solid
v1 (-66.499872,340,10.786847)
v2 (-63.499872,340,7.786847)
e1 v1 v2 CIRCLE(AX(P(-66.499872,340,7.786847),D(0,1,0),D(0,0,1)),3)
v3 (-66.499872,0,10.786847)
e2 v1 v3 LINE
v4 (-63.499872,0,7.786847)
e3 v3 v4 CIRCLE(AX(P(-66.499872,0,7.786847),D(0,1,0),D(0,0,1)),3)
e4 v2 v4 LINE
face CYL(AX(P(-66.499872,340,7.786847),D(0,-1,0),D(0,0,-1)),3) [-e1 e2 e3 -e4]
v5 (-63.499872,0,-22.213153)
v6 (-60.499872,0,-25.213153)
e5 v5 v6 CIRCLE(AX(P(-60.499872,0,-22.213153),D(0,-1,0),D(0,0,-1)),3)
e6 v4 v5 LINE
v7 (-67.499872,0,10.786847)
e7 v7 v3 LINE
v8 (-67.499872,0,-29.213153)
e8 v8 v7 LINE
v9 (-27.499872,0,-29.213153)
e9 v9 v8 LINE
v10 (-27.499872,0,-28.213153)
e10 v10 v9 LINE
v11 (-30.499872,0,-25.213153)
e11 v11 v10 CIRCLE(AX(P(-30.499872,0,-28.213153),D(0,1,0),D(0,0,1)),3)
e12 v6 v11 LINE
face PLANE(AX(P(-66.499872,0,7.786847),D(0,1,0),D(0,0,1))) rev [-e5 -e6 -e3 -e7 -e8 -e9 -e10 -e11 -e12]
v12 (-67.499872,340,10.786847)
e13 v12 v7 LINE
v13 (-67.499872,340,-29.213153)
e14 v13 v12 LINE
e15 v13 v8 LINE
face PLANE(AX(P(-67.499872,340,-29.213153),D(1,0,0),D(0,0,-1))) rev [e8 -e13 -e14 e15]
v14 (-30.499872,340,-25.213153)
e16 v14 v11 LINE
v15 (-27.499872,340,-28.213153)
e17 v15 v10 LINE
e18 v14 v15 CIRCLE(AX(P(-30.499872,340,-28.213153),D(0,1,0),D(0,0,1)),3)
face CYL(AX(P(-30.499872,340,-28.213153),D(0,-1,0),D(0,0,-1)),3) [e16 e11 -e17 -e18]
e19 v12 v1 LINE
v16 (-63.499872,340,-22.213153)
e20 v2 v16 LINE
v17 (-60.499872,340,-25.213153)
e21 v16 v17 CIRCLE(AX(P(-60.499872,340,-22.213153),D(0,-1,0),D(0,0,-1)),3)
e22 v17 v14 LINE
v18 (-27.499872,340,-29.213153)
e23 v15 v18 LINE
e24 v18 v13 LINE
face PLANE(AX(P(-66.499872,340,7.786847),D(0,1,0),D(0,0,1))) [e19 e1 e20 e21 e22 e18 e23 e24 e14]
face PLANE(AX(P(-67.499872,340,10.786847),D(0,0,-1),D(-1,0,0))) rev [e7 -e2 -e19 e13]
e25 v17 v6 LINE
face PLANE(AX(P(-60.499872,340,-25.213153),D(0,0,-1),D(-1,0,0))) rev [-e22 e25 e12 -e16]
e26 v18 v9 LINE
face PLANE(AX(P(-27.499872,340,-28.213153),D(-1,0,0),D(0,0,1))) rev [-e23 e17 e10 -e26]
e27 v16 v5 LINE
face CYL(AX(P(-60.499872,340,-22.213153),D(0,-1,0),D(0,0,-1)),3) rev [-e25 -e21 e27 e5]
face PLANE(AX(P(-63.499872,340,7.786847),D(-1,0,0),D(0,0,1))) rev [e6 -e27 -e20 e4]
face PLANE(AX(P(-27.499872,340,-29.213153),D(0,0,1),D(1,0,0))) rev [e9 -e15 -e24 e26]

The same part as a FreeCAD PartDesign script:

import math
import FreeCAD as App
import Part
import Sketcher
from FreeCAD import Vector
Q = App.Units.Quantity

doc = App.newDocument("Part")
body = doc.addObject("PartDesign::Body", "Body")

sketch1 = body.newObject("Sketcher::SketchObject", "Sketch")
sketch1.AttachmentSupport = (doc.getObject("XZ_Plane"), [""])
sketch1.MapMode = "FlatFace"
sketch1.addGeometry([
    Part.LineSegment(Vector(-27.5, -29.2, 0), Vector(-67.5, -29.2, 0)),
    Part.LineSegment(Vector(-67.5, -29.2, 0), Vector(-67.5, 10.8, 0)),
    Part.LineSegment(Vector(-67.5, 10.8, 0), Vector(-66.5, 10.8, 0)),
    Part.ArcOfCircle(Part.Circle(Vector(-66.5, 7.8, 0), Vector(0, 0, 1), 3), math.radians(0), math.radians(90)),
    Part.LineSegment(Vector(-63.5, 7.8, 0), Vector(-63.5, -22.2, 0)),
    Part.ArcOfCircle(Part.Circle(Vector(-60.5, -22.2, 0), Vector(0, 0, 1), 3), math.radians(180), math.radians(270)),
    Part.LineSegment(Vector(-60.5, -25.2, 0), Vector(-30.5, -25.2, 0)),
    Part.ArcOfCircle(Part.Circle(Vector(-30.5, -28.2, 0), Vector(0, 0, 1), 3), math.radians(0), math.radians(90)),
    Part.LineSegment(Vector(-27.5, -28.2, 0), Vector(-27.5, -29.2, 0)),
], False)
sketch1.addConstraint([
    Sketcher.Constraint("Coincident", 0, 2, 1, 1),
    Sketcher.Constraint("Coincident", 1, 2, 2, 1),
    Sketcher.Constraint("Tangent", 2, 2, 3, 2),
    Sketcher.Constraint("Tangent", 3, 1, 4, 1),
    Sketcher.Constraint("Tangent", 4, 2, 5, 1),
    Sketcher.Constraint("Tangent", 5, 2, 6, 1),
    Sketcher.Constraint("Tangent", 6, 2, 7, 2),
    Sketcher.Constraint("Tangent", 7, 1, 8, 1),
    Sketcher.Constraint("Coincident", 8, 2, 0, 1),
    Sketcher.Constraint("Horizontal", 0),
    Sketcher.Constraint("Vertical", 1),
    Sketcher.Constraint("Horizontal", 2),
    Sketcher.Constraint("Vertical", 4),
    Sketcher.Constraint("Horizontal", 6),
    Sketcher.Constraint("Vertical", 8),
    Sketcher.Constraint("Equal", 3, 5),
    Sketcher.Constraint("Equal", 5, 7),
    Sketcher.Constraint("Equal", 0, 1),
    Sketcher.Constraint("Equal", 6, 4),
    Sketcher.Constraint("Radius", 3, Q("3 mm")),
    Sketcher.Constraint("DistanceX", 0, 2, 0, 1, Q("40 mm")),
    Sketcher.Constraint("DistanceX", 2, 1, 2, 2, Q("1 mm")),
    Sketcher.Constraint("DistanceX", 3, 3, -1, 1, Q("66.499872 mm")),
    Sketcher.Constraint("DistanceY", -1, 1, 3, 3, Q("7.786847 mm")),
])
pad1 = body.newObject("PartDesign::Pad", "Pad")
pad1.Profile = sketch1
pad1.Length = 340
pad1.Reversed = True

doc.recompute()
